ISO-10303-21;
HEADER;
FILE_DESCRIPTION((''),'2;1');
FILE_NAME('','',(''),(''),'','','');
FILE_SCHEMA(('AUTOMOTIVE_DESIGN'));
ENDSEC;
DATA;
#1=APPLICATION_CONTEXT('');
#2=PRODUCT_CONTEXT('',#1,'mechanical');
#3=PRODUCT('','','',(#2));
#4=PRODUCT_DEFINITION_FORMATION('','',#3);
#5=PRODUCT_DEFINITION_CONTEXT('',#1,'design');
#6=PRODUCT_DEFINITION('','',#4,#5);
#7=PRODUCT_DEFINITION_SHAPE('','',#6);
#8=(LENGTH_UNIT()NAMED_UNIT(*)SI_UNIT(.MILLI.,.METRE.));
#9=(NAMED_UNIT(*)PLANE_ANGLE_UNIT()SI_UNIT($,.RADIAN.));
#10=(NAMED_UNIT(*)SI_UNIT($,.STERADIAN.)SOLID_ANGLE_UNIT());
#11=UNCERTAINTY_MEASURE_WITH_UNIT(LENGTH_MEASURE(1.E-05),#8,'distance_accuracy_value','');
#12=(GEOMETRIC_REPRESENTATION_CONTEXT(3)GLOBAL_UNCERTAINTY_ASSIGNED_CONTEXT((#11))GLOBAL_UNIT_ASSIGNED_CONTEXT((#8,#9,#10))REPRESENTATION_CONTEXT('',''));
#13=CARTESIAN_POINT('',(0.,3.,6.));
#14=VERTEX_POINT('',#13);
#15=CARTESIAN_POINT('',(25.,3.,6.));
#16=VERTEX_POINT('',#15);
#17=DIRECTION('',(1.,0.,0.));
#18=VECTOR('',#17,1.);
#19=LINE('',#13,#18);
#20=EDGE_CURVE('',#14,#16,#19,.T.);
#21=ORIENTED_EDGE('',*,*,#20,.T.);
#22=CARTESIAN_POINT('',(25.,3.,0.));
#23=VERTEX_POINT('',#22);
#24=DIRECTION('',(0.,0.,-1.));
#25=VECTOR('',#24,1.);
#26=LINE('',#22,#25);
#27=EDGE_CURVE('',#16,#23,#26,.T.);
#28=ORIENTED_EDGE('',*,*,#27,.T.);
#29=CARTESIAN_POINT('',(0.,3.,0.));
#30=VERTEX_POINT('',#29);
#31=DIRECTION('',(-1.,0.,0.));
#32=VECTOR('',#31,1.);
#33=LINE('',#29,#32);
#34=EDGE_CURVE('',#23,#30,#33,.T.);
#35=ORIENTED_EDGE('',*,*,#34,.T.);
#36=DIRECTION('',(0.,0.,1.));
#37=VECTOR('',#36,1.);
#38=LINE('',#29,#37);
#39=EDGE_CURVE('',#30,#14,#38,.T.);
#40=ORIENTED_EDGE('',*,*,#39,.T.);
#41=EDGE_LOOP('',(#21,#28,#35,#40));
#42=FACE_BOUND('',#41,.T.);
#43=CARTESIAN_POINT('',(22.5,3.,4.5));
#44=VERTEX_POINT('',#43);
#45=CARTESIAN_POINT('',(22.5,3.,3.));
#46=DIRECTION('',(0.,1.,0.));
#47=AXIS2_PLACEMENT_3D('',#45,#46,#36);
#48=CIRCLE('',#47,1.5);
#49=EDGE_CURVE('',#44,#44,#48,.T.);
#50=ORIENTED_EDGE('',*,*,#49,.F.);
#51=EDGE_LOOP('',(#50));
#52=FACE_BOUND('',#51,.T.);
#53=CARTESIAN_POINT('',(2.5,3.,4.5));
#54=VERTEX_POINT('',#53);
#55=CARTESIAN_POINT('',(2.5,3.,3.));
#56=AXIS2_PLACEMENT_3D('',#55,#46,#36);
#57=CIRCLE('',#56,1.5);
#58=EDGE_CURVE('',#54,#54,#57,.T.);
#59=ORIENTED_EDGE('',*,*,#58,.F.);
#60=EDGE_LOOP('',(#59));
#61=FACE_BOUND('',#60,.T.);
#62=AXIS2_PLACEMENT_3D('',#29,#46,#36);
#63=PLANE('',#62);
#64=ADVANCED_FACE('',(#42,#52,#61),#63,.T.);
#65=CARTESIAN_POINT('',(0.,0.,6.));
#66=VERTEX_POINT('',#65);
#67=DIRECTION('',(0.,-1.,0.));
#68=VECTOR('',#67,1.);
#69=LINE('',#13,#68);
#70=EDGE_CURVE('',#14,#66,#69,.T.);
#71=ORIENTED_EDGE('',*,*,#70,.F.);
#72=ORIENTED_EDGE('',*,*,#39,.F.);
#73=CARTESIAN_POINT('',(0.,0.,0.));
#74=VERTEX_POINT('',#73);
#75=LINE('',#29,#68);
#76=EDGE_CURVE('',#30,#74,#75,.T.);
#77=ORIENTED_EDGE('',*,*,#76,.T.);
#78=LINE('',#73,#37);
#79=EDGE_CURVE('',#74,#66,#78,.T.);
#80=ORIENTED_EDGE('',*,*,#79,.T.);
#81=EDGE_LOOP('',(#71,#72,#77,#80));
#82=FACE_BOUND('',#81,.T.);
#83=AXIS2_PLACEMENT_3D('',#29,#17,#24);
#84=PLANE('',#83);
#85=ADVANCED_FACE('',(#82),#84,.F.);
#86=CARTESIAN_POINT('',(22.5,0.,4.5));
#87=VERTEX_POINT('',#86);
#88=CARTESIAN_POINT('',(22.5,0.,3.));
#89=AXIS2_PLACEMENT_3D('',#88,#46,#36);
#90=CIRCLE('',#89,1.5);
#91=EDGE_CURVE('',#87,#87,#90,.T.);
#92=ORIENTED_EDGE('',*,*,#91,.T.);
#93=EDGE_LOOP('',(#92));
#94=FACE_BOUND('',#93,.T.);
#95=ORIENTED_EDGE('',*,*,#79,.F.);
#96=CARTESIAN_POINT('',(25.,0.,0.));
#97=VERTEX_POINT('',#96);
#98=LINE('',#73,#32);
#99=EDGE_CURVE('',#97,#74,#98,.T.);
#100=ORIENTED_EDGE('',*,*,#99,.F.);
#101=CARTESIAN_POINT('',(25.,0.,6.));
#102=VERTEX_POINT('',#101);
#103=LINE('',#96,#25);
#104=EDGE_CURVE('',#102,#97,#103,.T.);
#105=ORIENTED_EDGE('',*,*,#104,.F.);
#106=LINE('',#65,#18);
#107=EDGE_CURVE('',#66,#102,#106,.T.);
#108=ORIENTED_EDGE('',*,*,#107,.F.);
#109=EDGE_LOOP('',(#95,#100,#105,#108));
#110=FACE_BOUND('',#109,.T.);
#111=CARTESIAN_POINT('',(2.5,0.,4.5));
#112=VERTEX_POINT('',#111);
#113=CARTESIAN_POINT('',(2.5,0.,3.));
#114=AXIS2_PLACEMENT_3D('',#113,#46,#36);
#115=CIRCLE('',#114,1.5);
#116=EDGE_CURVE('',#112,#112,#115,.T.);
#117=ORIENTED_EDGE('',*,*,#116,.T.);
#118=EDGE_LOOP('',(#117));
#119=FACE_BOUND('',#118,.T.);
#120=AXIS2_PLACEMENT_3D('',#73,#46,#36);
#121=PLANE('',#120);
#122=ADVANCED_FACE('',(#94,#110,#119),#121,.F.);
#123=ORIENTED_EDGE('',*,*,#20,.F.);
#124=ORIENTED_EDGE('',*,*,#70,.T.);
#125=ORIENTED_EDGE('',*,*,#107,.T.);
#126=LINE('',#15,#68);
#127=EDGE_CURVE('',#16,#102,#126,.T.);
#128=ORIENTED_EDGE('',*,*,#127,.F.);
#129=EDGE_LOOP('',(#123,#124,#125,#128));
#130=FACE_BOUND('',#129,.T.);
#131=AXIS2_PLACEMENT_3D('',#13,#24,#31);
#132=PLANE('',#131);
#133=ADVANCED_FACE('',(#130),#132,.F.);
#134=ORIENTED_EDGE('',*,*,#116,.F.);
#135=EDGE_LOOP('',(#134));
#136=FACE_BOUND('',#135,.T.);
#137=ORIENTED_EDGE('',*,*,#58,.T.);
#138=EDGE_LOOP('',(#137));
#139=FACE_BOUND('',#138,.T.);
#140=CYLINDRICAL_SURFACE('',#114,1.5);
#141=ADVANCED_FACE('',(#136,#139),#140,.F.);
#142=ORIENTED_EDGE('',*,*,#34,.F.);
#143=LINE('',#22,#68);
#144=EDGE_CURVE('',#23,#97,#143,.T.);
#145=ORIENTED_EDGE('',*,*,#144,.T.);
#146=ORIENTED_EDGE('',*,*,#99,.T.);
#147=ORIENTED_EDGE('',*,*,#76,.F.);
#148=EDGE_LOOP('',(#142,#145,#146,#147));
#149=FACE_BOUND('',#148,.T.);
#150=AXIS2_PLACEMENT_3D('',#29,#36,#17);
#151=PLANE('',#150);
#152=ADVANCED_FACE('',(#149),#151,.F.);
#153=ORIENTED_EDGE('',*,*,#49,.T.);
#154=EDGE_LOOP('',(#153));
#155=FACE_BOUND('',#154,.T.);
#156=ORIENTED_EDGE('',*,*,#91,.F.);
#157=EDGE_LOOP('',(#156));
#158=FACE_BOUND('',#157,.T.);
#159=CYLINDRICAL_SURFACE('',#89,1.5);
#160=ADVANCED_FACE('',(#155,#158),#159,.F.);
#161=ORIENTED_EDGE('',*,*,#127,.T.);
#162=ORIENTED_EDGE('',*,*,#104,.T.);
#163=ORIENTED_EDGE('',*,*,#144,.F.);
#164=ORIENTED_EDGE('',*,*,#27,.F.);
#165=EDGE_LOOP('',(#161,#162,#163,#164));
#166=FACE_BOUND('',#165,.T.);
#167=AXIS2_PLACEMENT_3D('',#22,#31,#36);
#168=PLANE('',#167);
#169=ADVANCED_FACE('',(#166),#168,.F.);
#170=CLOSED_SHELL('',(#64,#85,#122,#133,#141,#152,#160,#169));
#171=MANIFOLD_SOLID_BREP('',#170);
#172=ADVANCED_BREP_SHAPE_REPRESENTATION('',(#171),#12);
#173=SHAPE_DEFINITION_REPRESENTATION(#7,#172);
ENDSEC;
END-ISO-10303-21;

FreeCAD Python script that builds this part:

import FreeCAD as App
import Part
import Sketcher
Q = App.Units.Quantity

doc = App.newDocument("Part")
body = doc.addObject("PartDesign::Body", "Body")

sketch1 = body.newObject("Sketcher::SketchObject", "Sketch")
sketch1.AttachmentSupport = (doc.getObject("XZ_Plane"), [""])
sketch1.MapMode = "FlatFace"
sketch1.addGeometry([
    Part.LineSegment(App.Vector(0, 0, 0), App.Vector(0, 6, 0)),
    Part.LineSegment(App.Vector(0, 6, 0), App.Vector(25, 6, 0)),
    Part.LineSegment(App.Vector(25, 6, 0), App.Vector(25, 0, 0)),
    Part.LineSegment(App.Vector(25, 0, 0), App.Vector(0, 0, 0)),
], False)
sketch1.addConstraint([
    Sketcher.Constraint("Coincident", 0, 2, 1, 1),
    Sketcher.Constraint("Coincident", 1, 2, 2, 1),
    Sketcher.Constraint("Coincident", 2, 2, 3, 1),
    Sketcher.Constraint("Coincident", 3, 2, 0, 1),
    Sketcher.Constraint("Vertical", 0),
    Sketcher.Constraint("Horizontal", 1),
    Sketcher.Constraint("Vertical", 2),
    Sketcher.Constraint("Horizontal", 3),
    Sketcher.Constraint("Coincident", 3, 2, -1, 1),
    Sketcher.Constraint("DistanceX", 1, 1, 1, 2, Q("25 mm")),
    Sketcher.Constraint("DistanceY", 0, 1, 0, 2, Q("6 mm")),
])
pad1 = body.newObject("PartDesign::Pad", "Pad")
pad1.Profile = sketch1
pad1.Length = 3
pad1.Reversed = True

sketch2 = body.newObject("Sketcher::SketchObject", "Sketch001")
sketch2.AttachmentSupport = (doc.getObject("XZ_Plane"), [""])
sketch2.MapMode = "FlatFace"
sketch2.AttachmentOffset = App.Placement(App.Vector(0, 0, -3), App.Rotation())
sketch2.addGeometry([
    Part.Circle(App.Vector(2.5, 3, 0), App.Vector(0, 0, 1), 1.5),
    Part.Circle(App.Vector(22.5, 3, 0), App.Vector(0, 0, 1), 1.5),
], False)
sketch2.addConstraint([
    Sketcher.Constraint("Equal", 0, 1),
    Sketcher.Constraint("Horizontal", 0, 3, 1, 3),
    Sketcher.Constraint("Diameter", 0, Q("3 mm")),
    Sketcher.Constraint("DistanceY", -1, 1, 0, 3, Q("3 mm")),
    Sketcher.Constraint("DistanceX", 0, 3, 1, 3, Q("20 mm")),
    Sketcher.Constraint("DistanceX", -1, 1, 0, 3, Q("2.5 mm")),
])
pocket1 = body.newObject("PartDesign::Pocket", "Pocket")
pocket1.Profile = sketch2
pocket1.Length = 3
pocket1.Reversed = True

doc.recompute()
